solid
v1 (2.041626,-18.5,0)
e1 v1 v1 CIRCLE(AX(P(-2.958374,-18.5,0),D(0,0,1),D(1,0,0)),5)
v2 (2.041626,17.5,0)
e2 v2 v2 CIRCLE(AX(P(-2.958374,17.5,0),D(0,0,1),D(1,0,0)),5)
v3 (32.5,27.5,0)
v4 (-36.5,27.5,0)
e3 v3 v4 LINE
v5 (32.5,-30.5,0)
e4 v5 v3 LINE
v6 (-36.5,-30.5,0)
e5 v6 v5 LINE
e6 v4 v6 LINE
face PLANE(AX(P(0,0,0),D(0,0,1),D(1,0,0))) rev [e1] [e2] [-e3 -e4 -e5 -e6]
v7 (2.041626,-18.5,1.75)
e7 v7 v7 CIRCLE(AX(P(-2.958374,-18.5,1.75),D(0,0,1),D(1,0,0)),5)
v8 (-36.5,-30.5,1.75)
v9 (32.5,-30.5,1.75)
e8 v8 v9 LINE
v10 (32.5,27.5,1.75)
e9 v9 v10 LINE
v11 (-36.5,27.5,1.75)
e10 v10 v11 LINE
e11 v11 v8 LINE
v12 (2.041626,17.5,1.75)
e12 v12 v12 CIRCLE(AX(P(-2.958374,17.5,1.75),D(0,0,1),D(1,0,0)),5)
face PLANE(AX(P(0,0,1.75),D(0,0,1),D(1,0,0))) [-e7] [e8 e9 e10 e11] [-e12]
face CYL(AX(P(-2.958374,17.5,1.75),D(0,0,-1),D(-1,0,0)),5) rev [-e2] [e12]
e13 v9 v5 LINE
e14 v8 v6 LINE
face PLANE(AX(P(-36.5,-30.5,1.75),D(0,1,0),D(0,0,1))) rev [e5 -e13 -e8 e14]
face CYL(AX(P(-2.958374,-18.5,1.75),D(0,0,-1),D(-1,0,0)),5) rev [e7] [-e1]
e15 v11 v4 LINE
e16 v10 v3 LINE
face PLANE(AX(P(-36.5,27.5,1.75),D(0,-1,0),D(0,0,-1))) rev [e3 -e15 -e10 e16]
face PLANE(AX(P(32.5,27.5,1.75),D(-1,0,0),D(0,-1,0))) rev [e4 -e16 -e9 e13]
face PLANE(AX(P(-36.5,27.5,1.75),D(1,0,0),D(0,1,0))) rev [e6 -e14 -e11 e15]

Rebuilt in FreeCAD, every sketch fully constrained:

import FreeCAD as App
import Part
import Sketcher

V = App.Vector
Q = App.Units.Quantity


def add_polygon(sketch, points):
    """Adds a closed chain of lines whose ends are joined by coincident constraints."""
    first, n = sketch.GeometryCount, len(points)
    for a, b in zip(points, points[1:] + points[:1]):
        sketch.addGeometry(Part.LineSegment(App.Vector(*a, 0), App.Vector(*b, 0)), False)
    for i in range(n):
        sketch.addConstraint(Sketcher.Constraint("Coincident", first + i, 2, first + (i + 1) % n, 1))

doc = App.newDocument("Part")
body = doc.addObject("PartDesign::Body", "Body")

# Sketch on XY plane
sketch1 = body.newObject("Sketcher::SketchObject", "Sketch")
sketch1.AttachmentSupport = (doc.getObject("XY_Plane"), [""])
sketch1.MapMode = "FlatFace"
add_polygon(sketch1, [(-36, 28), (-36, -30), (32, -30), (32, 28)])  # lines 0-3
sketch1.addGeometry(Part.Circle(V(-3, -18, 0), V(0, 0, 1), 5), False)  # 4
sketch1.addGeometry(Part.Circle(V(-3, 18, 0), V(0, 0, 1), 5), False)  # 5
sketch1.addConstraint(Sketcher.Constraint("Vertical", 0))
sketch1.addConstraint(Sketcher.Constraint("Horizontal", 1))
sketch1.addConstraint(Sketcher.Constraint("Vertical", 2))
sketch1.addConstraint(Sketcher.Constraint("Horizontal", 3))
sketch1.addConstraint(Sketcher.Constraint("Equal", 4, 5))
sketch1.addConstraint(Sketcher.Constraint("Vertical", 4, 3, 5, 3))
sketch1.addConstraint(Sketcher.Constraint("Diameter", 4, Q("10 mm")))
sketch1.addConstraint(Sketcher.Constraint("DistanceX", 1, 1, 1, 2, Q("69 mm")))
sketch1.addConstraint(Sketcher.Constraint("DistanceY", 0, 2, 0, 1, Q("58 mm")))
sketch1.addConstraint(Sketcher.Constraint("DistanceY", 4, 3, 5, 3, Q("36 mm")))
sketch1.addConstraint(Sketcher.Constraint("DistanceY", 0, 2, 4, 3, Q("12 mm")))
sketch1.addConstraint(Sketcher.Constraint("DistanceY", 4, 3, -1, 1, Q("18.5 mm")))
sketch1.addConstraint(Sketcher.Constraint("DistanceX", 0, 2, -1, 1, Q("36.5 mm")))
sketch1.addConstraint(Sketcher.Constraint("DistanceX", 4, 3, -1, 1, Q("2.958374 mm")))
pad1 = body.newObject("PartDesign::Pad", "Pad")
pad1.Profile = sketch1
pad1.Length = 1.75

doc.recompute()
